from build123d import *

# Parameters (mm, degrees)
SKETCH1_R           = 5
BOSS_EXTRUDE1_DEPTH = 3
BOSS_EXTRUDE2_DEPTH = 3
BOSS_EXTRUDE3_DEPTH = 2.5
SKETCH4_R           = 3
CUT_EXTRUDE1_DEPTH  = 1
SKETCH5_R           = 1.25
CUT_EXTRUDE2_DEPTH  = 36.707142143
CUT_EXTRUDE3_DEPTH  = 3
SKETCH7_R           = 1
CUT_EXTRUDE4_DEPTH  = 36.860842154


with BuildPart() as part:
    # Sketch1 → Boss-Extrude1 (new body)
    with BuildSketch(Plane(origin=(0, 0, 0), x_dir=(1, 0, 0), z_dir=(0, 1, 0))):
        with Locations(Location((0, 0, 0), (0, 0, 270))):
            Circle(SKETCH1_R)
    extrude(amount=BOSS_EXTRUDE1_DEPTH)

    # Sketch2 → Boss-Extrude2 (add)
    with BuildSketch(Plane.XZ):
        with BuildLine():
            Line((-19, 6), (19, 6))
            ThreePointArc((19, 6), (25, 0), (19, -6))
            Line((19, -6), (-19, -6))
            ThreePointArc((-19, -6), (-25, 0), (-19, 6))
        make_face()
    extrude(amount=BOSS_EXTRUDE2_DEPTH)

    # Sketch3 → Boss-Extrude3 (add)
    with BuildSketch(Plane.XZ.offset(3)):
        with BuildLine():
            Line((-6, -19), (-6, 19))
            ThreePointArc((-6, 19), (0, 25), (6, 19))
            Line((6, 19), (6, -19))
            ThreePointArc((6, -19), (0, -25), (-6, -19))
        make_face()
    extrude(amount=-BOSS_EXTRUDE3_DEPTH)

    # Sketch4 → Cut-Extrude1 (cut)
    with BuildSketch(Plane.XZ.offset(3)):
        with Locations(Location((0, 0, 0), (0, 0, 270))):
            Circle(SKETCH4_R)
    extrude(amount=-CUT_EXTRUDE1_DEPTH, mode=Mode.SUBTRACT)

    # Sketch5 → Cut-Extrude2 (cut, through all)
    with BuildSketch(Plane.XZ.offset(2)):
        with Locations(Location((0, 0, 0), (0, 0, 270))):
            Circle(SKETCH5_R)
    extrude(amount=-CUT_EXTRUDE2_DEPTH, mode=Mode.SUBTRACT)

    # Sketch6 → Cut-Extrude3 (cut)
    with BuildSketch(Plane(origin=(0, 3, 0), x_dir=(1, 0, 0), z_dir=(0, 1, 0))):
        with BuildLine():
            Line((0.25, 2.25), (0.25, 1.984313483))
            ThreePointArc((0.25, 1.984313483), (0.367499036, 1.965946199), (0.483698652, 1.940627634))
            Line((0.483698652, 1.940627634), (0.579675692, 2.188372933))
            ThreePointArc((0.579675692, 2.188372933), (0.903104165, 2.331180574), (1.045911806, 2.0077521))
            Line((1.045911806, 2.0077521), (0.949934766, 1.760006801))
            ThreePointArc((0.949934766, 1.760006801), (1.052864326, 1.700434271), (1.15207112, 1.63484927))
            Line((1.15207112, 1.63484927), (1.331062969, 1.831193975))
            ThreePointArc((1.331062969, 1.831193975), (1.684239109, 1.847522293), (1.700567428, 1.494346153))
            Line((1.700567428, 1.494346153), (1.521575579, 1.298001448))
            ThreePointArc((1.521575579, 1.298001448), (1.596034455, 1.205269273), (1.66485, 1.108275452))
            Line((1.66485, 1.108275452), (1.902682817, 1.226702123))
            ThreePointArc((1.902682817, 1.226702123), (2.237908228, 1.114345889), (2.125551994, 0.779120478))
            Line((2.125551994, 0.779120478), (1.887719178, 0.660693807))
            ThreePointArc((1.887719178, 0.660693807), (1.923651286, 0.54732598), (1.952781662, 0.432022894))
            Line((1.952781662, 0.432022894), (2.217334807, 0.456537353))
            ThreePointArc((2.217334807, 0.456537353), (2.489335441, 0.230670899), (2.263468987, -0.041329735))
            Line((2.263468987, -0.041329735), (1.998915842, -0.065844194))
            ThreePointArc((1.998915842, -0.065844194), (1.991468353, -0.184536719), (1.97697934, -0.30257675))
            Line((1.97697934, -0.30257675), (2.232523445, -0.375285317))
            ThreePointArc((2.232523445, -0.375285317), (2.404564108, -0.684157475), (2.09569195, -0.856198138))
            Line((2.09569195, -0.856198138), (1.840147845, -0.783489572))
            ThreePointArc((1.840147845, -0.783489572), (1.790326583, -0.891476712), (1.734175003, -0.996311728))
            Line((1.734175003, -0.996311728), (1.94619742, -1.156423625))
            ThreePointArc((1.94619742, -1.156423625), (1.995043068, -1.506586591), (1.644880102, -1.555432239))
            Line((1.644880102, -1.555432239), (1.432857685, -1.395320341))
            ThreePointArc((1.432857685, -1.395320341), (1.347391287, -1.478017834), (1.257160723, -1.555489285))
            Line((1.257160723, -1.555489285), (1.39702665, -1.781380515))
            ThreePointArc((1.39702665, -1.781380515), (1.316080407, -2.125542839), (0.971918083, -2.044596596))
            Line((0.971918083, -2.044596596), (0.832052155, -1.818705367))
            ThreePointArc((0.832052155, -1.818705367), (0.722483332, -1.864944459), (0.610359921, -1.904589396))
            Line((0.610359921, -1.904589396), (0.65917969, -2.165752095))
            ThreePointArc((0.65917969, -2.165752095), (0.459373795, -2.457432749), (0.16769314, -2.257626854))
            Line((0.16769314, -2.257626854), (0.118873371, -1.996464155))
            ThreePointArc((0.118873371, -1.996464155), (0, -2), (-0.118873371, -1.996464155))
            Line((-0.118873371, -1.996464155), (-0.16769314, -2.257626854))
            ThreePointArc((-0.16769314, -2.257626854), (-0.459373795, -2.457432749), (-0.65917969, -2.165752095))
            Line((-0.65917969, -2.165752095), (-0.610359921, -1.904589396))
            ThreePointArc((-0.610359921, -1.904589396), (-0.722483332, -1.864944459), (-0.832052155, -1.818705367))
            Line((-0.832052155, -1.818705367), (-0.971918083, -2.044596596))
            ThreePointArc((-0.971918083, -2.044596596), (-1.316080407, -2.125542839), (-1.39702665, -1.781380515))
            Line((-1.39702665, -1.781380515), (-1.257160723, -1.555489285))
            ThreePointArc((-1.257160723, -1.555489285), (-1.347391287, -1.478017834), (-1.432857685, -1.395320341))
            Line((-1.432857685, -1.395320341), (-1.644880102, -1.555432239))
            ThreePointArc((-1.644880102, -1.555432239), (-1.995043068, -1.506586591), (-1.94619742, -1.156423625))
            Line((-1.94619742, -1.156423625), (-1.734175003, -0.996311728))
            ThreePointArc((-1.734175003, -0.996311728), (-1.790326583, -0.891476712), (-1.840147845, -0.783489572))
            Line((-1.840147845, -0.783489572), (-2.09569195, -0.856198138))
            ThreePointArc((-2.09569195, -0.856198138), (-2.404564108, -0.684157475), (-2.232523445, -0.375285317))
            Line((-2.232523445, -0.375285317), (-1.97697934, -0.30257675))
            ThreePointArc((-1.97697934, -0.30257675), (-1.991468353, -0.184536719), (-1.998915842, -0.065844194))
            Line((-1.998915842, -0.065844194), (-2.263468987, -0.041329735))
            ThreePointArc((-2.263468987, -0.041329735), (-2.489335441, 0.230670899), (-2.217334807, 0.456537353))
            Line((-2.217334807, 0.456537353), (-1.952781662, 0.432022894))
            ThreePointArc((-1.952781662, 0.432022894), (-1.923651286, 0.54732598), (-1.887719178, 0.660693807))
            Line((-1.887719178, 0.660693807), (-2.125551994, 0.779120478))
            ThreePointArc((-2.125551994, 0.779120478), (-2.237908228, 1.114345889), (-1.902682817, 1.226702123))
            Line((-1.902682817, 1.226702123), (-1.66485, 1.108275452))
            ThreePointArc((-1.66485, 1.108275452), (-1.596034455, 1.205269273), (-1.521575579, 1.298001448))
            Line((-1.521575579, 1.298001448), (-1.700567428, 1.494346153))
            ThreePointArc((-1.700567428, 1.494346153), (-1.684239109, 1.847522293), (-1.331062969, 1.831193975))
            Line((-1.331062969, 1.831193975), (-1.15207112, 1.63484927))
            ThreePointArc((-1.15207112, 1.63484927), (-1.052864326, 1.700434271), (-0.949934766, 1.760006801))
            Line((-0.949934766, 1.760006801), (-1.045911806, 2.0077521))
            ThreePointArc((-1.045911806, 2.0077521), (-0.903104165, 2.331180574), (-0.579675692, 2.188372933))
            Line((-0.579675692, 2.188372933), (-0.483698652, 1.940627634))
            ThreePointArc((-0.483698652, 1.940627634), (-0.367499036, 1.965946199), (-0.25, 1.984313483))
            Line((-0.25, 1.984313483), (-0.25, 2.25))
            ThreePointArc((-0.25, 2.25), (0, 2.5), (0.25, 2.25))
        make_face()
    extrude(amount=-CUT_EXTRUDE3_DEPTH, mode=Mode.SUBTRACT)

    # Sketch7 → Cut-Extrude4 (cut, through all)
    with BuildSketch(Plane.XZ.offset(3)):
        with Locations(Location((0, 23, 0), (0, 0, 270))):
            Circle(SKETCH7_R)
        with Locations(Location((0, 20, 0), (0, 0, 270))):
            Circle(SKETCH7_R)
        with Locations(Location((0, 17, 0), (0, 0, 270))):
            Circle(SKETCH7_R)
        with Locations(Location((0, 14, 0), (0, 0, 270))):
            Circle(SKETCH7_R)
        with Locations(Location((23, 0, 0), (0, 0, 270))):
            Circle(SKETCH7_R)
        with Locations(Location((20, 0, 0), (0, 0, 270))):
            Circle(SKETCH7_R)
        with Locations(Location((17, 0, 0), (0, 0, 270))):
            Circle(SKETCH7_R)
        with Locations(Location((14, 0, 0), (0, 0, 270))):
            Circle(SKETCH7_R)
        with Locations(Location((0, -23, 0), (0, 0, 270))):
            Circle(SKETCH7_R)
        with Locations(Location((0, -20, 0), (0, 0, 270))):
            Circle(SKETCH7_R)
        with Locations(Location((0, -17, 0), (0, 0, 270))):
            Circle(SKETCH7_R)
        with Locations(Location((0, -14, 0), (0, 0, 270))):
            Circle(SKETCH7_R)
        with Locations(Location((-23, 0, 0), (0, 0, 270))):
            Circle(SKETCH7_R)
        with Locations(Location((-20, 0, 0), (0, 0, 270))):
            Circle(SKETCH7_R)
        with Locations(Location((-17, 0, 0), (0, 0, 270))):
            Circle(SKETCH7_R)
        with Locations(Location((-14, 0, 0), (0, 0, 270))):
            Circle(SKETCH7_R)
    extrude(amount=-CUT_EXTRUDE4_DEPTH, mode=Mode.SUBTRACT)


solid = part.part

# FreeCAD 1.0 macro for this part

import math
import FreeCAD as App
import Part
import Sketcher
Q = App.Units.Quantity

doc = App.newDocument("Part")
body = doc.addObject("PartDesign::Body", "Body")

# Sketch on XZ plane
sketch1 = doc.addObject("Sketcher::SketchObject", "Sketch")
body.addObject(sketch1)
sketch1.AttachmentSupport = (doc.XZ_Plane, [""])
sketch1.MapMode = "FlatFace"
sketch1.addGeometry(Part.Circle(App.Vector(0, 0, 0), App.Vector(0, 0, 1), 5), False)
sketch1.addConstraint([
    Sketcher.Constraint("Coincident", 0, 3, -1, 1),
    Sketcher.Constraint("Diameter", 0, Q("10 mm")),
])
pad1 = doc.addObject("PartDesign::Pad", "Pad")
body.addObject(pad1)
pad1.Profile = sketch1
pad1.Length = 3
pad1.Reversed = True

# Sketch on XZ plane
sketch2 = doc.addObject("Sketcher::SketchObject", "Sketch001")
body.addObject(sketch2)
sketch2.AttachmentSupport = (doc.XZ_Plane, [""])
sketch2.MapMode = "FlatFace"
sketch2.addGeometry([
    Part.LineSegment(App.Vector(19, 6, 0), App.Vector(-19, 6, 0)),
    Part.ArcOfCircle(Part.Circle(App.Vector(-19, 0, 0), App.Vector(0, 0, 1), 6), math.radians(90), math.radians(270)),
    Part.LineSegment(App.Vector(-19, -6, 0), App.Vector(19, -6, 0)),
    Part.ArcOfCircle(Part.Circle(App.Vector(19, 0, 0), App.Vector(0, 0, 1), 6), math.radians(-90), math.radians(90)),
], False)
sketch2.addConstraint([
    Sketcher.Constraint("Tangent", 0, 2, 1, 1),
    Sketcher.Constraint("Tangent", 1, 2, 2, 1),
    Sketcher.Constraint("Tangent", 2, 2, 3, 1),
    Sketcher.Constraint("Tangent", 3, 2, 0, 1),
    Sketcher.Constraint("Horizontal", 0),
    Sketcher.Constraint("Horizontal", 2),
    Sketcher.Constraint("Symmetric", 1, 3, 3, 3, -1, 1),
    Sketcher.Constraint("Radius", 1, Q("6 mm")),
    Sketcher.Constraint("DistanceX", 0, 2, 0, 1, Q("38 mm")),
])
pad2 = doc.addObject("PartDesign::Pad", "Pad001")
body.addObject(pad2)
pad2.Profile = sketch2
pad2.Length = 3

# Sketch on XZ plane
sketch3 = doc.addObject("Sketcher::SketchObject", "Sketch002")
body.addObject(sketch3)
sketch3.AttachmentSupport = (doc.XZ_Plane, [""])
sketch3.MapMode = "FlatFace"
sketch3.AttachmentOffset = App.Placement(App.Vector(0, 0, 3), App.Rotation())
sketch3.addGeometry([
    Part.LineSegment(App.Vector(-6, 19, 0), App.Vector(-6, -19, 0)),
    Part.ArcOfCircle(Part.Circle(App.Vector(0, -19, 0), App.Vector(0, 0, 1), 6), math.radians(180), math.radians(360)),
    Part.LineSegment(App.Vector(6, -19, 0), App.Vector(6, 19, 0)),
    Part.ArcOfCircle(Part.Circle(App.Vector(0, 19, 0), App.Vector(0, 0, 1), 6), math.radians(0), math.radians(180)),
], False)
sketch3.addConstraint([
    Sketcher.Constraint("Tangent", 0, 2, 1, 1),
    Sketcher.Constraint("Tangent", 1, 2, 2, 1),
    Sketcher.Constraint("Tangent", 2, 2, 3, 1),
    Sketcher.Constraint("Tangent", 3, 2, 0, 1),
    Sketcher.Constraint("Vertical", 0),
    Sketcher.Constraint("Vertical", 2),
    Sketcher.Constraint("Symmetric", 1, 3, 3, 3, -1, 1),
    Sketcher.Constraint("Radius", 1, Q("6 mm")),
    Sketcher.Constraint("DistanceY", 0, 2, 0, 1, Q("38 mm")),
])
pad3 = doc.addObject("PartDesign::Pad", "Pad002")
body.addObject(pad3)
pad3.Profile = sketch3
pad3.Length = 2.5
pad3.Reversed = True

# Sketch on XZ plane
sketch4 = doc.addObject("Sketcher::SketchObject", "Sketch003")
body.addObject(sketch4)
sketch4.AttachmentSupport = (doc.XZ_Plane, [""])
sketch4.MapMode = "FlatFace"
sketch4.AttachmentOffset = App.Placement(App.Vector(0, 0, 3), App.Rotation())
sketch4.addGeometry(Part.Circle(App.Vector(0, 0, 0), App.Vector(0, 0, 1), 3), False)
sketch4.addConstraint([
    Sketcher.Constraint("Coincident", 0, 3, -1, 1),
    Sketcher.Constraint("Diameter", 0, Q("6 mm")),
])
pocket1 = doc.addObject("PartDesign::Pocket", "Pocket")
body.addObject(pocket1)
pocket1.Profile = sketch4
pocket1.Length = 1

# Sketch on XZ plane
sketch5 = doc.addObject("Sketcher::SketchObject", "Sketch004")
body.addObject(sketch5)
sketch5.AttachmentSupport = (doc.XZ_Plane, [""])
sketch5.MapMode = "FlatFace"
sketch5.AttachmentOffset = App.Placement(App.Vector(0, 0, 2), App.Rotation())
sketch5.addGeometry(Part.Circle(App.Vector(0, 0, 0), App.Vector(0, 0, 1), 1.25), False)
sketch5.addConstraint([
    Sketcher.Constraint("Coincident", 0, 3, -1, 1),
    Sketcher.Constraint("Diameter", 0, Q("2.5 mm")),
])
pocket2 = doc.addObject("PartDesign::Pocket", "Pocket001")
body.addObject(pocket2)
pocket2.Profile = sketch5
pocket2.Type = "ThroughAll"

# Sketch on XZ plane
sketch6 = doc.addObject("Sketcher::SketchObject", "Sketch005")
body.addObject(sketch6)
sketch6.AttachmentSupport = (doc.XZ_Plane, [""])
sketch6.MapMode = "FlatFace"
sketch6.AttachmentOffset = App.Placement(App.Vector(0, 0, -3), App.Rotation())
sketch6.addGeometry([
    Part.LineSegment(App.Vector(0.25, -1.984313, 0), App.Vector(0.25, -2.25, 0)),  # 0
    Part.ArcOfCircle(Part.Circle(App.Vector(0, -2.25, 0), App.Vector(0, 0, 1), 0.25), math.radians(180), math.radians(360)),  # 1
    Part.LineSegment(App.Vector(-0.25, -2.25, 0), App.Vector(-0.25, -1.984313, 0)),  # 2
    Part.ArcOfCircle(Part.Circle(App.Vector(0, 0, 0), App.Vector(0, 0, 1), 2), math.radians(-103.995715), math.radians(-97.180756)),  # 3
    Part.LineSegment(App.Vector(-0.483699, -1.940628, 0), App.Vector(-0.579676, -2.188373, 0)),  # 4
    Part.ArcOfCircle(Part.Circle(App.Vector(-0.812794, -2.098063, 0), App.Vector(0, 0, 1), 0.25), math.radians(158.823529), math.radians(338.823529)),  # 5
    Part.LineSegment(App.Vector(-1.045912, -2.007752, 0), App.Vector(-0.949935, -1.760007, 0)),  # 6
    Part.ArcOfCircle(Part.Circle(App.Vector(0, 0, 0), App.Vector(0, 0, 1), 2), math.radians(-125.172185), math.radians(-118.357227)),  # 7
    Part.LineSegment(App.Vector(-1.152071, -1.634849, 0), App.Vector(-1.331063, -1.831194, 0)),  # 8
    Part.ArcOfCircle(Part.Circle(App.Vector(-1.515815, -1.66277, 0), App.Vector(0, 0, 1), 0.25), math.radians(137.647059), math.radians(317.647059)),  # 9
    Part.LineSegment(App.Vector(-1.700567, -1.494346, 0), App.Vector(-1.521576, -1.298001, 0)),  # 10
    Part.ArcOfCircle(Part.Circle(App.Vector(0, 0, 0), App.Vector(0, 0, 1), 2), math.radians(-146.348656), math.radians(-139.533697)),  # 11
    Part.LineSegment(App.Vector(-1.66485, -1.108275, 0), App.Vector(-1.902683, -1.226702, 0)),  # 12
    Part.ArcOfCircle(Part.Circle(App.Vector(-2.014117, -1.002911, 0), App.Vector(0, 0, 1), 0.25), math.radians(116.470588), math.radians(296.470588)),  # 13
    Part.LineSegment(App.Vector(-2.125552, -0.77912, 0), App.Vector(-1.887719, -0.660694, 0)),  # 14
    Part.ArcOfCircle(Part.Circle(App.Vector(0, 0, 0), App.Vector(0, 0, 1), 2), math.radians(-167.525126), math.radians(-160.710168)),  # 15
    Part.LineSegment(App.Vector(-1.952782, -0.432023, 0), App.Vector(-2.217335, -0.456537, 0)),  # 16
    Part.ArcOfCircle(Part.Circle(App.Vector(-2.240402, -0.207604, 0), App.Vector(0, 0, 1), 0.25), math.radians(95.294118), math.radians(275.294118)),  # 17
    Part.LineSegment(App.Vector(-2.263469, 0.04133, 0), App.Vector(-1.998916, 0.065844, 0)),  # 18
    Part.ArcOfCircle(Part.Circle(App.Vector(0, 0, 0), App.Vector(0, 0, 1), 2), math.radians(171.298403), math.radians(178.113362)),  # 19
    Part.LineSegment(App.Vector(-1.976979, 0.302577, 0), App.Vector(-2.232523, 0.375285, 0)),  # 20
    Part.ArcOfCircle(Part.Circle(App.Vector(-2.164108, 0.615742, 0), App.Vector(0, 0, 1), 0.25), math.radians(74.117647), math.radians(254.117647)),  # 21
    Part.LineSegment(App.Vector(-2.095692, 0.856198, 0), App.Vector(-1.840148, 0.78349, 0)),  # 22
    Part.ArcOfCircle(Part.Circle(App.Vector(0, 0, 0), App.Vector(0, 0, 1), 2), math.radians(150.121932), math.radians(156.936892)),  # 23
    Part.LineSegment(App.Vector(-1.734175, 0.996312, 0), App.Vector(-1.946197, 1.156424, 0)),  # 24
    Part.ArcOfCircle(Part.Circle(App.Vector(-1.795539, 1.355928, 0), App.Vector(0, 0, 1), 0.25), math.radians(52.941177), math.radians(232.941177)),  # 25
    Part.LineSegment(App.Vector(-1.64488, 1.555432, 0), App.Vector(-1.432858, 1.39532, 0)),  # 26
    Part.ArcOfCircle(Part.Circle(App.Vector(0, 0, 0), App.Vector(0, 0, 1), 2), math.radians(128.945462), math.radians(135.76042)),  # 27
    Part.LineSegment(App.Vector(-1.257161, 1.555489, 0), App.Vector(-1.397027, 1.781381, 0)),  # 28
    Part.ArcOfCircle(Part.Circle(App.Vector(-1.184472, 1.912989, 0), App.Vector(0, 0, 1), 0.25), math.radians(31.764706), math.radians(211.764706)),  # 29
    Part.LineSegment(App.Vector(-0.971918, 2.044597, 0), App.Vector(-0.832052, 1.818705, 0)),  # 30
    Part.ArcOfCircle(Part.Circle(App.Vector(0, 0, 0), App.Vector(0, 0, 1), 2), math.radians(107.768991), math.radians(114.58395)),  # 31
    Part.LineSegment(App.Vector(-0.61036, 1.904589, 0), App.Vector(-0.65918, 2.165752, 0)),  # 32
    Part.ArcOfCircle(Part.Circle(App.Vector(-0.413436, 2.211689, 0), App.Vector(0, 0, 1), 0.25), math.radians(10.588235), math.radians(190.588235)),  # 33
    Part.LineSegment(App.Vector(-0.167693, 2.257627, 0), App.Vector(-0.118873, 1.996464, 0)),  # 34
    Part.ArcOfCircle(Part.Circle(App.Vector(0, 0, 0), App.Vector(0, 0, 1), 2), math.radians(86.592521), math.radians(93.407479)),  # 35
    Part.LineSegment(App.Vector(0.118873, 1.996464, 0), App.Vector(0.167693, 2.257627, 0)),  # 36
    Part.ArcOfCircle(Part.Circle(App.Vector(0.413436, 2.211689, 0), App.Vector(0, 0, 1), 0.25), math.radians(-10.588235), math.radians(169.411765)),  # 37
    Part.LineSegment(App.Vector(0.65918, 2.165752, 0), App.Vector(0.61036, 1.904589, 0)),  # 38
    Part.ArcOfCircle(Part.Circle(App.Vector(0, 0, 0), App.Vector(0, 0, 1), 2), math.radians(65.41605), math.radians(72.231009)),  # 39
    Part.LineSegment(App.Vector(0.832052, 1.818705, 0), App.Vector(0.971918, 2.044597, 0)),  # 40
    Part.ArcOfCircle(Part.Circle(App.Vector(1.184472, 1.912989, 0), App.Vector(0, 0, 1), 0.25), math.radians(-31.764706), math.radians(148.235294)),  # 41
    Part.LineSegment(App.Vector(1.397027, 1.781381, 0), App.Vector(1.257161, 1.555489, 0)),  # 42
    Part.ArcOfCircle(Part.Circle(App.Vector(0, 0, 0), App.Vector(0, 0, 1), 2), math.radians(44.23958), math.radians(51.054538)),  # 43
    Part.LineSegment(App.Vector(1.432858, 1.39532, 0), App.Vector(1.64488, 1.555432, 0)),  # 44
    Part.ArcOfCircle(Part.Circle(App.Vector(1.795539, 1.355928, 0), App.Vector(0, 0, 1), 0.25), math.radians(-52.941177), math.radians(127.058823)),  # 45
    Part.LineSegment(App.Vector(1.946197, 1.156424, 0), App.Vector(1.734175, 0.996312, 0)),  # 46
    Part.ArcOfCircle(Part.Circle(App.Vector(0, 0, 0), App.Vector(0, 0, 1), 2), math.radians(23.063108), math.radians(29.878068)),  # 47
    Part.LineSegment(App.Vector(1.840148, 0.78349, 0), App.Vector(2.095692, 0.856198, 0)),  # 48
    Part.ArcOfCircle(Part.Circle(App.Vector(2.164108, 0.615742, 0), App.Vector(0, 0, 1), 0.25), math.radians(-74.117647), math.radians(105.882353)),  # 49
    Part.LineSegment(App.Vector(2.232523, 0.375285, 0), App.Vector(1.976979, 0.302577, 0)),  # 50
    Part.ArcOfCircle(Part.Circle(App.Vector(0, 0, 0), App.Vector(0, 0, 1), 2), math.radians(1.886638), math.radians(8.701597)),  # 51
    Part.LineSegment(App.Vector(1.998916, 0.065844, 0), App.Vector(2.263469, 0.04133, 0)),  # 52
    Part.ArcOfCircle(Part.Circle(App.Vector(2.240402, -0.207604, 0), App.Vector(0, 0, 1), 0.25), math.radians(-95.294118), math.radians(84.705882)),  # 53
    Part.LineSegment(App.Vector(2.217335, -0.456537, 0), App.Vector(1.952782, -0.432023, 0)),  # 54
    Part.ArcOfCircle(Part.Circle(App.Vector(0, 0, 0), App.Vector(0, 0, 1), 2), math.radians(-19.289832), math.radians(-12.474874)),  # 55
    Part.LineSegment(App.Vector(1.887719, -0.660694, 0), App.Vector(2.125552, -0.77912, 0)),  # 56
    Part.ArcOfCircle(Part.Circle(App.Vector(2.014117, -1.002911, 0), App.Vector(0, 0, 1), 0.25), math.radians(-116.470588), math.radians(63.529412)),  # 57
    Part.LineSegment(App.Vector(1.902683, -1.226702, 0), App.Vector(1.66485, -1.108275, 0)),  # 58
    Part.ArcOfCircle(Part.Circle(App.Vector(0, 0, 0), App.Vector(0, 0, 1), 2), math.radians(-40.466303), math.radians(-33.651344)),  # 59
    Part.LineSegment(App.Vector(1.521576, -1.298001, 0), App.Vector(1.700567, -1.494346, 0)),  # 60
    Part.ArcOfCircle(Part.Circle(App.Vector(1.515815, -1.66277, 0), App.Vector(0, 0, 1), 0.25), math.radians(-137.647059), math.radians(42.352941)),  # 61
    Part.LineSegment(App.Vector(1.331063, -1.831194, 0), App.Vector(1.152071, -1.634849, 0)),  # 62
    Part.ArcOfCircle(Part.Circle(App.Vector(0, 0, 0), App.Vector(0, 0, 1), 2), math.radians(-61.642773), math.radians(-54.827815)),  # 63
    Part.LineSegment(App.Vector(0.949935, -1.760007, 0), App.Vector(1.045912, -2.007752, 0)),  # 64
    Part.ArcOfCircle(Part.Circle(App.Vector(0.812794, -2.098063, 0), App.Vector(0, 0, 1), 0.25), math.radians(-158.823529), math.radians(21.176471)),  # 65
    Part.LineSegment(App.Vector(0.579676, -2.188373, 0), App.Vector(0.483699, -1.940628, 0)),  # 66
    Part.ArcOfCircle(Part.Circle(App.Vector(0, 0, 0), App.Vector(0, 0, 1), 2), math.radians(-82.819244), math.radians(-76.004285)),  # 67
], False)
sketch6.addConstraint([
    Sketcher.Constraint("Tangent", 0, 2, 1, 2),
    Sketcher.Constraint("Tangent", 1, 1, 2, 1),
    Sketcher.Constraint("Coincident", 2, 2, 3, 2),
    Sketcher.Constraint("Coincident", 3, 1, 4, 1),
    Sketcher.Constraint("Tangent", 4, 2, 5, 2),
    Sketcher.Constraint("Tangent", 5, 1, 6, 1),
    Sketcher.Constraint("Coincident", 6, 2, 7, 2),
    Sketcher.Constraint("Coincident", 7, 1, 8, 1),
    Sketcher.Constraint("Tangent", 8, 2, 9, 2),
    Sketcher.Constraint("Tangent", 9, 1, 10, 1),
    Sketcher.Constraint("Coincident", 10, 2, 11, 2),
    Sketcher.Constraint("Coincident", 11, 1, 12, 1),
    Sketcher.Constraint("Tangent", 12, 2, 13, 2),
    Sketcher.Constraint("Tangent", 13, 1, 14, 1),
    Sketcher.Constraint("Coincident", 14, 2, 15, 2),
    Sketcher.Constraint("Coincident", 15, 1, 16, 1),
    Sketcher.Constraint("Tangent", 16, 2, 17, 2),
    Sketcher.Constraint("Tangent", 17, 1, 18, 1),
    Sketcher.Constraint("Coincident", 18, 2, 19, 2),
    Sketcher.Constraint("Coincident", 19, 1, 20, 1),
    Sketcher.Constraint("Tangent", 20, 2, 21, 2),
    Sketcher.Constraint("Tangent", 21, 1, 22, 1),
    Sketcher.Constraint("Coincident", 22, 2, 23, 2),
    Sketcher.Constraint("Coincident", 23, 1, 24, 1),
    Sketcher.Constraint("Tangent", 24, 2, 25, 2),
    Sketcher.Constraint("Tangent", 25, 1, 26, 1),
    Sketcher.Constraint("Coincident", 26, 2, 27, 2),
    Sketcher.Constraint("Coincident", 27, 1, 28, 1),
    Sketcher.Constraint("Tangent", 28, 2, 29, 2),
    Sketcher.Constraint("Tangent", 29, 1, 30, 1),
    Sketcher.Constraint("Coincident", 30, 2, 31, 2),
    Sketcher.Constraint("Coincident", 31, 1, 32, 1),
    Sketcher.Constraint("Tangent", 32, 2, 33, 2),
    Sketcher.Constraint("Tangent", 33, 1, 34, 1),
    Sketcher.Constraint("Coincident", 34, 2, 35, 2),
    Sketcher.Constraint("Coincident", 35, 1, 36, 1),
    Sketcher.Constraint("Tangent", 36, 2, 37, 2),
    Sketcher.Constraint("Tangent", 37, 1, 38, 1),
    Sketcher.Constraint("Coincident", 38, 2, 39, 2),
    Sketcher.Constraint("Coincident", 39, 1, 40, 1),
    Sketcher.Constraint("Tangent", 40, 2, 41, 2),
    Sketcher.Constraint("Tangent", 41, 1, 42, 1),
    Sketcher.Constraint("Coincident", 42, 2, 43, 2),
    Sketcher.Constraint("Coincident", 43, 1, 44, 1),
    Sketcher.Constraint("Tangent", 44, 2, 45, 2),
    Sketcher.Constraint("Tangent", 45, 1, 46, 1),
    Sketcher.Constraint("Coincident", 46, 2, 47, 2),
    Sketcher.Constraint("Coincident", 47, 1, 48, 1),
    Sketcher.Constraint("Tangent", 48, 2, 49, 2),
    Sketcher.Constraint("Tangent", 49, 1, 50, 1),
    Sketcher.Constraint("Coincident", 50, 2, 51, 2),
    Sketcher.Constraint("Coincident", 51, 1, 52, 1),
    Sketcher.Constraint("Tangent", 52, 2, 53, 2),
    Sketcher.Constraint("Tangent", 53, 1, 54, 1),
    Sketcher.Constraint("Coincident", 54, 2, 55, 2),
    Sketcher.Constraint("Coincident", 55, 1, 56, 1),
    Sketcher.Constraint("Tangent", 56, 2, 57, 2),
    Sketcher.Constraint("Tangent", 57, 1, 58, 1),
    Sketcher.Constraint("Coincident", 58, 2, 59, 2),
    Sketcher.Constraint("Coincident", 59, 1, 60, 1),
    Sketcher.Constraint("Tangent", 60, 2, 61, 2),
    Sketcher.Constraint("Tangent", 61, 1, 62, 1),
    Sketcher.Constraint("Coincident", 62, 2, 63, 2),
    Sketcher.Constraint("Coincident", 63, 1, 64, 1),
    Sketcher.Constraint("Tangent", 64, 2, 65, 2),
    Sketcher.Constraint("Tangent", 65, 1, 66, 1),
    Sketcher.Constraint("Coincident", 66, 2, 67, 2),
    Sketcher.Constraint("Coincident", 67, 1, 0, 1),
    Sketcher.Constraint("Vertical", 0),
    Sketcher.Constraint("Vertical", 2),
    Sketcher.Constraint("Coincident", 3, 3, -1, 1),
    Sketcher.Constraint("Coincident", 7, 3, -1, 1),
    Sketcher.Constraint("Coincident", 11, 3, -1, 1),
    Sketcher.Constraint("Coincident", 15, 3, -1, 1),
    Sketcher.Constraint("Coincident", 19, 3, -1, 1),
    Sketcher.Constraint("Coincident", 23, 3, -1, 1),
    Sketcher.Constraint("Coincident", 27, 3, -1, 1),
    Sketcher.Constraint("Coincident", 31, 3, -1, 1),
    Sketcher.Constraint("Coincident", 35, 3, -1, 1),
    Sketcher.Constraint("Coincident", 39, 3, -1, 1),
    Sketcher.Constraint("Coincident", 43, 3, -1, 1),
    Sketcher.Constraint("Coincident", 47, 3, -1, 1),
    Sketcher.Constraint("Coincident", 51, 3, -1, 1),
    Sketcher.Constraint("Coincident", 55, 3, -1, 1),
    Sketcher.Constraint("Coincident", 59, 3, -1, 1),
    Sketcher.Constraint("Coincident", 63, 3, -1, 1),
    Sketcher.Constraint("Coincident", 67, 3, -1, 1),
    Sketcher.Constraint("Equal", 1, 5),
    Sketcher.Constraint("Equal", 3, 7),
    Sketcher.Constraint("Equal", 5, 9),
    Sketcher.Constraint("Equal", 7, 11),
    Sketcher.Constraint("Equal", 9, 13),
    Sketcher.Constraint("Equal", 11, 15),
    Sketcher.Constraint("Equal", 13, 17),
    Sketcher.Constraint("Equal", 15, 19),
    Sketcher.Constraint("Equal", 17, 21),
    Sketcher.Constraint("Equal", 19, 23),
    Sketcher.Constraint("Equal", 21, 25),
    Sketcher.Constraint("Equal", 23, 27),
    Sketcher.Constraint("Equal", 25, 29),
    Sketcher.Constraint("Equal", 27, 31),
    Sketcher.Constraint("Equal", 29, 33),
    Sketcher.Constraint("Equal", 31, 35),
    Sketcher.Constraint("Equal", 33, 37),
    Sketcher.Constraint("Equal", 35, 39),
    Sketcher.Constraint("Equal", 37, 41),
    Sketcher.Constraint("Equal", 39, 43),
    Sketcher.Constraint("Equal", 41, 45),
    Sketcher.Constraint("Equal", 43, 47),
    Sketcher.Constraint("Equal", 45, 49),
    Sketcher.Constraint("Equal", 47, 51),
    Sketcher.Constraint("Equal", 49, 53),
    Sketcher.Constraint("Equal", 51, 55),
    Sketcher.Constraint("Equal", 53, 57),
    Sketcher.Constraint("Equal", 55, 59),
    Sketcher.Constraint("Equal", 57, 61),
    Sketcher.Constraint("Equal", 59, 63),
    Sketcher.Constraint("Equal", 61, 65),
    Sketcher.Constraint("Equal", 63, 67),
    Sketcher.Constraint("Symmetric", 33, 3, 37, 3, -2),
    Sketcher.Constraint("Symmetric", 29, 3, 41, 3, -2),
    Sketcher.Constraint("Symmetric", 25, 3, 45, 3, -2),
    Sketcher.Constraint("Symmetric", 21, 3, 49, 3, -2),
    Sketcher.Constraint("Symmetric", 17, 3, 53, 3, -2),
    Sketcher.Constraint("Symmetric", 13, 3, 57, 3, -2),
    Sketcher.Constraint("Symmetric", 9, 3, 61, 3, -2),
    Sketcher.Constraint("Symmetric", 5, 3, 65, 3, -2),
    Sketcher.Constraint("PointOnObject", 1, 3, -2),
    Sketcher.Constraint("Parallel", 4, 6),
    Sketcher.Constraint("Parallel", 8, 10),
    Sketcher.Constraint("Parallel", 12, 14),
    Sketcher.Constraint("Parallel", 16, 18),
    Sketcher.Constraint("Parallel", 20, 22),
    Sketcher.Constraint("Parallel", 24, 26),
    Sketcher.Constraint("Parallel", 28, 30),
    Sketcher.Constraint("Parallel", 32, 34),
    Sketcher.Constraint("Parallel", 36, 38),
    Sketcher.Constraint("Parallel", 40, 42),
    Sketcher.Constraint("Parallel", 44, 46),
    Sketcher.Constraint("Parallel", 48, 50),
    Sketcher.Constraint("Parallel", 52, 54),
    Sketcher.Constraint("Parallel", 56, 58),
    Sketcher.Constraint("Parallel", 60, 62),
    Sketcher.Constraint("Parallel", 64, 66),
    Sketcher.Constraint("Horizontal", 34, 2, 35, 1),
    Sketcher.Constraint("Horizontal", 30, 2, 39, 1),
    Sketcher.Constraint("Horizontal", 26, 2, 43, 1),
    Sketcher.Constraint("Horizontal", 22, 2, 47, 1),
    Sketcher.Constraint("Horizontal", 18, 2, 51, 1),
    Sketcher.Constraint("Horizontal", 14, 2, 55, 1),
    Sketcher.Constraint("Horizontal", 10, 2, 59, 1),
    Sketcher.Constraint("Horizontal", 6, 2, 63, 1),
    Sketcher.Constraint("Equal", 4, 6),
    Sketcher.Constraint("Equal", 6, 8),
    Sketcher.Constraint("Equal", 8, 10),
    Sketcher.Constraint("Equal", 10, 12),
    Sketcher.Constraint("Equal", 12, 14),
    Sketcher.Constraint("Equal", 14, 16),
    Sketcher.Constraint("Equal", 16, 18),
    Sketcher.Constraint("Equal", 18, 20),
    Sketcher.Constraint("Equal", 20, 22),
    Sketcher.Constraint("Equal", 22, 24),
    Sketcher.Constraint("Equal", 24, 26),
    Sketcher.Constraint("Equal", 26, 28),
    Sketcher.Constraint("Equal", 28, 30),
    Sketcher.Constraint("Equal", 30, 32),
    Sketcher.Constraint("Equal", 32, 34),
    Sketcher.Constraint("Radius", 3, Q("2 mm")),
    Sketcher.Constraint("Radius", 1, Q("0.25 mm")),
    Sketcher.Constraint("DistanceY", 1, 3, -1, 1, Q("2.25 mm")),
    Sketcher.Constraint("DistanceY", 10, 2, -1, 1, Q("1.298001 mm")),
    Sketcher.Constraint("DistanceX", 17, 3, -1, 1, Q("2.240402 mm")),
    Sketcher.Constraint("DistanceX", 3, 1, -1, 1, Q("0.483699 mm")),
    Sketcher.Constraint("DistanceY", -1, 1, 21, 1, Q("0.856198 mm")),
    Sketcher.Constraint("DistanceY", 9, 3, -1, 1, Q("1.66277 mm")),
    Sketcher.Constraint("DistanceY", 13, 3, -1, 1, Q("1.002911 mm")),
    Sketcher.Constraint("DistanceX", 25, 3, -1, 1, Q("1.795539 mm")),
    Sketcher.Constraint("DistanceY", -1, 1, 29, 3, Q("1.912989 mm")),
    Sketcher.Constraint("DistanceY", -1, 1, 33, 3, Q("2.211689 mm")),
])
pocket3 = doc.addObject("PartDesign::Pocket", "Pocket002")
body.addObject(pocket3)
pocket3.Profile = sketch6
pocket3.Length = 3
pocket3.Reversed = True

# Sketch on XZ plane
sketch7 = doc.addObject("Sketcher::SketchObject", "Sketch006")
body.addObject(sketch7)
sketch7.AttachmentSupport = (doc.XZ_Plane, [""])
sketch7.MapMode = "FlatFace"
sketch7.AttachmentOffset = App.Placement(App.Vector(0, 0, 3), App.Rotation())
sketch7.addGeometry([
    Part.Circle(App.Vector(0, 23, 0), App.Vector(0, 0, 1), 1),  # 0
    Part.Circle(App.Vector(0, 20, 0), App.Vector(0, 0, 1), 1),  # 1
    Part.Circle(App.Vector(0, 17, 0), App.Vector(0, 0, 1), 1),  # 2
    Part.Circle(App.Vector(0, 14, 0), App.Vector(0, 0, 1), 1),  # 3
    Part.Circle(App.Vector(23, 0, 0), App.Vector(0, 0, 1), 1),  # 4
    Part.Circle(App.Vector(20, 0, 0), App.Vector(0, 0, 1), 1),  # 5
    Part.Circle(App.Vector(17, 0, 0), App.Vector(0, 0, 1), 1),  # 6
    Part.Circle(App.Vector(14, 0, 0), App.Vector(0, 0, 1), 1),  # 7
    Part.Circle(App.Vector(0, -23, 0), App.Vector(0, 0, 1), 1),  # 8
    Part.Circle(App.Vector(0, -20, 0), App.Vector(0, 0, 1), 1),  # 9
    Part.Circle(App.Vector(0, -17, 0), App.Vector(0, 0, 1), 1),  # 10
    Part.Circle(App.Vector(0, -14, 0), App.Vector(0, 0, 1), 1),  # 11
    Part.Circle(App.Vector(-23, 0, 0), App.Vector(0, 0, 1), 1),  # 12
    Part.Circle(App.Vector(-20, 0, 0), App.Vector(0, 0, 1), 1),  # 13
    Part.Circle(App.Vector(-17, 0, 0), App.Vector(0, 0, 1), 1),  # 14
    Part.Circle(App.Vector(-14, 0, 0), App.Vector(0, 0, 1), 1),  # 15
], False)
sketch7.addConstraint([
    Sketcher.Constraint("Equal", 0, 1),
    Sketcher.Constraint("Equal", 1, 2),
    Sketcher.Constraint("Equal", 2, 3),
    Sketcher.Constraint("Equal", 3, 4),
    Sketcher.Constraint("Equal", 4, 5),
    Sketcher.Constraint("Equal", 5, 6),
    Sketcher.Constraint("Equal", 6, 7),
    Sketcher.Constraint("Equal", 7, 8),
    Sketcher.Constraint("Equal", 8, 9),
    Sketcher.Constraint("Equal", 9, 10),
    Sketcher.Constraint("Equal", 10, 11),
    Sketcher.Constraint("Equal", 11, 12),
    Sketcher.Constraint("Equal", 12, 13),
    Sketcher.Constraint("Equal", 13, 14),
    Sketcher.Constraint("Equal", 14, 15),
    Sketcher.Constraint("Symmetric", 0, 3, 8, 3, -1, 1),
    Sketcher.Constraint("Symmetric", 1, 3, 9, 3, -1, 1),
    Sketcher.Constraint("Symmetric", 2, 3, 10, 3, -1, 1),
    Sketcher.Constraint("Symmetric", 3, 3, 11, 3, -1, 1),
    Sketcher.Constraint("Symmetric", 4, 3, 12, 3, -1, 1),
    Sketcher.Constraint("Symmetric", 5, 3, 13, 3, -1, 1),
    Sketcher.Constraint("Symmetric", 6, 3, 14, 3, -1, 1),
    Sketcher.Constraint("Symmetric", 7, 3, 15, 3, -1, 1),
    Sketcher.Constraint("PointOnObject", 0, 3, -2),
    Sketcher.Constraint("PointOnObject", 1, 3, -2),
    Sketcher.Constraint("PointOnObject", 2, 3, -2),
    Sketcher.Constraint("PointOnObject", 3, 3, -2),
    Sketcher.Constraint("PointOnObject", 4, 3, -1),
    Sketcher.Constraint("PointOnObject", 5, 3, -1),
    Sketcher.Constraint("PointOnObject", 6, 3, -1),
    Sketcher.Constraint("PointOnObject", 7, 3, -1),
    Sketcher.Constraint("Diameter", 0, Q("2 mm")),
    Sketcher.Constraint("DistanceY", -1, 1, 0, 3, Q("23 mm")),
    Sketcher.Constraint("DistanceY", -1, 1, 1, 3, Q("20 mm")),
    Sketcher.Constraint("DistanceY", -1, 1, 2, 3, Q("17 mm")),
    Sketcher.Constraint("DistanceY", -1, 1, 3, 3, Q("14 mm")),
    Sketcher.Constraint("DistanceX", -1, 1, 4, 3, Q("23 mm")),
    Sketcher.Constraint("DistanceX", -1, 1, 5, 3, Q("20 mm")),
    Sketcher.Constraint("DistanceX", -1, 1, 6, 3, Q("17 mm")),
    Sketcher.Constraint("DistanceX", -1, 1, 7, 3, Q("14 mm")),
])
pocket4 = doc.addObject("PartDesign::Pocket", "Pocket003")
body.addObject(pocket4)
pocket4.Profile = sketch7
pocket4.Type = "ThroughAll"

doc.recompute()
